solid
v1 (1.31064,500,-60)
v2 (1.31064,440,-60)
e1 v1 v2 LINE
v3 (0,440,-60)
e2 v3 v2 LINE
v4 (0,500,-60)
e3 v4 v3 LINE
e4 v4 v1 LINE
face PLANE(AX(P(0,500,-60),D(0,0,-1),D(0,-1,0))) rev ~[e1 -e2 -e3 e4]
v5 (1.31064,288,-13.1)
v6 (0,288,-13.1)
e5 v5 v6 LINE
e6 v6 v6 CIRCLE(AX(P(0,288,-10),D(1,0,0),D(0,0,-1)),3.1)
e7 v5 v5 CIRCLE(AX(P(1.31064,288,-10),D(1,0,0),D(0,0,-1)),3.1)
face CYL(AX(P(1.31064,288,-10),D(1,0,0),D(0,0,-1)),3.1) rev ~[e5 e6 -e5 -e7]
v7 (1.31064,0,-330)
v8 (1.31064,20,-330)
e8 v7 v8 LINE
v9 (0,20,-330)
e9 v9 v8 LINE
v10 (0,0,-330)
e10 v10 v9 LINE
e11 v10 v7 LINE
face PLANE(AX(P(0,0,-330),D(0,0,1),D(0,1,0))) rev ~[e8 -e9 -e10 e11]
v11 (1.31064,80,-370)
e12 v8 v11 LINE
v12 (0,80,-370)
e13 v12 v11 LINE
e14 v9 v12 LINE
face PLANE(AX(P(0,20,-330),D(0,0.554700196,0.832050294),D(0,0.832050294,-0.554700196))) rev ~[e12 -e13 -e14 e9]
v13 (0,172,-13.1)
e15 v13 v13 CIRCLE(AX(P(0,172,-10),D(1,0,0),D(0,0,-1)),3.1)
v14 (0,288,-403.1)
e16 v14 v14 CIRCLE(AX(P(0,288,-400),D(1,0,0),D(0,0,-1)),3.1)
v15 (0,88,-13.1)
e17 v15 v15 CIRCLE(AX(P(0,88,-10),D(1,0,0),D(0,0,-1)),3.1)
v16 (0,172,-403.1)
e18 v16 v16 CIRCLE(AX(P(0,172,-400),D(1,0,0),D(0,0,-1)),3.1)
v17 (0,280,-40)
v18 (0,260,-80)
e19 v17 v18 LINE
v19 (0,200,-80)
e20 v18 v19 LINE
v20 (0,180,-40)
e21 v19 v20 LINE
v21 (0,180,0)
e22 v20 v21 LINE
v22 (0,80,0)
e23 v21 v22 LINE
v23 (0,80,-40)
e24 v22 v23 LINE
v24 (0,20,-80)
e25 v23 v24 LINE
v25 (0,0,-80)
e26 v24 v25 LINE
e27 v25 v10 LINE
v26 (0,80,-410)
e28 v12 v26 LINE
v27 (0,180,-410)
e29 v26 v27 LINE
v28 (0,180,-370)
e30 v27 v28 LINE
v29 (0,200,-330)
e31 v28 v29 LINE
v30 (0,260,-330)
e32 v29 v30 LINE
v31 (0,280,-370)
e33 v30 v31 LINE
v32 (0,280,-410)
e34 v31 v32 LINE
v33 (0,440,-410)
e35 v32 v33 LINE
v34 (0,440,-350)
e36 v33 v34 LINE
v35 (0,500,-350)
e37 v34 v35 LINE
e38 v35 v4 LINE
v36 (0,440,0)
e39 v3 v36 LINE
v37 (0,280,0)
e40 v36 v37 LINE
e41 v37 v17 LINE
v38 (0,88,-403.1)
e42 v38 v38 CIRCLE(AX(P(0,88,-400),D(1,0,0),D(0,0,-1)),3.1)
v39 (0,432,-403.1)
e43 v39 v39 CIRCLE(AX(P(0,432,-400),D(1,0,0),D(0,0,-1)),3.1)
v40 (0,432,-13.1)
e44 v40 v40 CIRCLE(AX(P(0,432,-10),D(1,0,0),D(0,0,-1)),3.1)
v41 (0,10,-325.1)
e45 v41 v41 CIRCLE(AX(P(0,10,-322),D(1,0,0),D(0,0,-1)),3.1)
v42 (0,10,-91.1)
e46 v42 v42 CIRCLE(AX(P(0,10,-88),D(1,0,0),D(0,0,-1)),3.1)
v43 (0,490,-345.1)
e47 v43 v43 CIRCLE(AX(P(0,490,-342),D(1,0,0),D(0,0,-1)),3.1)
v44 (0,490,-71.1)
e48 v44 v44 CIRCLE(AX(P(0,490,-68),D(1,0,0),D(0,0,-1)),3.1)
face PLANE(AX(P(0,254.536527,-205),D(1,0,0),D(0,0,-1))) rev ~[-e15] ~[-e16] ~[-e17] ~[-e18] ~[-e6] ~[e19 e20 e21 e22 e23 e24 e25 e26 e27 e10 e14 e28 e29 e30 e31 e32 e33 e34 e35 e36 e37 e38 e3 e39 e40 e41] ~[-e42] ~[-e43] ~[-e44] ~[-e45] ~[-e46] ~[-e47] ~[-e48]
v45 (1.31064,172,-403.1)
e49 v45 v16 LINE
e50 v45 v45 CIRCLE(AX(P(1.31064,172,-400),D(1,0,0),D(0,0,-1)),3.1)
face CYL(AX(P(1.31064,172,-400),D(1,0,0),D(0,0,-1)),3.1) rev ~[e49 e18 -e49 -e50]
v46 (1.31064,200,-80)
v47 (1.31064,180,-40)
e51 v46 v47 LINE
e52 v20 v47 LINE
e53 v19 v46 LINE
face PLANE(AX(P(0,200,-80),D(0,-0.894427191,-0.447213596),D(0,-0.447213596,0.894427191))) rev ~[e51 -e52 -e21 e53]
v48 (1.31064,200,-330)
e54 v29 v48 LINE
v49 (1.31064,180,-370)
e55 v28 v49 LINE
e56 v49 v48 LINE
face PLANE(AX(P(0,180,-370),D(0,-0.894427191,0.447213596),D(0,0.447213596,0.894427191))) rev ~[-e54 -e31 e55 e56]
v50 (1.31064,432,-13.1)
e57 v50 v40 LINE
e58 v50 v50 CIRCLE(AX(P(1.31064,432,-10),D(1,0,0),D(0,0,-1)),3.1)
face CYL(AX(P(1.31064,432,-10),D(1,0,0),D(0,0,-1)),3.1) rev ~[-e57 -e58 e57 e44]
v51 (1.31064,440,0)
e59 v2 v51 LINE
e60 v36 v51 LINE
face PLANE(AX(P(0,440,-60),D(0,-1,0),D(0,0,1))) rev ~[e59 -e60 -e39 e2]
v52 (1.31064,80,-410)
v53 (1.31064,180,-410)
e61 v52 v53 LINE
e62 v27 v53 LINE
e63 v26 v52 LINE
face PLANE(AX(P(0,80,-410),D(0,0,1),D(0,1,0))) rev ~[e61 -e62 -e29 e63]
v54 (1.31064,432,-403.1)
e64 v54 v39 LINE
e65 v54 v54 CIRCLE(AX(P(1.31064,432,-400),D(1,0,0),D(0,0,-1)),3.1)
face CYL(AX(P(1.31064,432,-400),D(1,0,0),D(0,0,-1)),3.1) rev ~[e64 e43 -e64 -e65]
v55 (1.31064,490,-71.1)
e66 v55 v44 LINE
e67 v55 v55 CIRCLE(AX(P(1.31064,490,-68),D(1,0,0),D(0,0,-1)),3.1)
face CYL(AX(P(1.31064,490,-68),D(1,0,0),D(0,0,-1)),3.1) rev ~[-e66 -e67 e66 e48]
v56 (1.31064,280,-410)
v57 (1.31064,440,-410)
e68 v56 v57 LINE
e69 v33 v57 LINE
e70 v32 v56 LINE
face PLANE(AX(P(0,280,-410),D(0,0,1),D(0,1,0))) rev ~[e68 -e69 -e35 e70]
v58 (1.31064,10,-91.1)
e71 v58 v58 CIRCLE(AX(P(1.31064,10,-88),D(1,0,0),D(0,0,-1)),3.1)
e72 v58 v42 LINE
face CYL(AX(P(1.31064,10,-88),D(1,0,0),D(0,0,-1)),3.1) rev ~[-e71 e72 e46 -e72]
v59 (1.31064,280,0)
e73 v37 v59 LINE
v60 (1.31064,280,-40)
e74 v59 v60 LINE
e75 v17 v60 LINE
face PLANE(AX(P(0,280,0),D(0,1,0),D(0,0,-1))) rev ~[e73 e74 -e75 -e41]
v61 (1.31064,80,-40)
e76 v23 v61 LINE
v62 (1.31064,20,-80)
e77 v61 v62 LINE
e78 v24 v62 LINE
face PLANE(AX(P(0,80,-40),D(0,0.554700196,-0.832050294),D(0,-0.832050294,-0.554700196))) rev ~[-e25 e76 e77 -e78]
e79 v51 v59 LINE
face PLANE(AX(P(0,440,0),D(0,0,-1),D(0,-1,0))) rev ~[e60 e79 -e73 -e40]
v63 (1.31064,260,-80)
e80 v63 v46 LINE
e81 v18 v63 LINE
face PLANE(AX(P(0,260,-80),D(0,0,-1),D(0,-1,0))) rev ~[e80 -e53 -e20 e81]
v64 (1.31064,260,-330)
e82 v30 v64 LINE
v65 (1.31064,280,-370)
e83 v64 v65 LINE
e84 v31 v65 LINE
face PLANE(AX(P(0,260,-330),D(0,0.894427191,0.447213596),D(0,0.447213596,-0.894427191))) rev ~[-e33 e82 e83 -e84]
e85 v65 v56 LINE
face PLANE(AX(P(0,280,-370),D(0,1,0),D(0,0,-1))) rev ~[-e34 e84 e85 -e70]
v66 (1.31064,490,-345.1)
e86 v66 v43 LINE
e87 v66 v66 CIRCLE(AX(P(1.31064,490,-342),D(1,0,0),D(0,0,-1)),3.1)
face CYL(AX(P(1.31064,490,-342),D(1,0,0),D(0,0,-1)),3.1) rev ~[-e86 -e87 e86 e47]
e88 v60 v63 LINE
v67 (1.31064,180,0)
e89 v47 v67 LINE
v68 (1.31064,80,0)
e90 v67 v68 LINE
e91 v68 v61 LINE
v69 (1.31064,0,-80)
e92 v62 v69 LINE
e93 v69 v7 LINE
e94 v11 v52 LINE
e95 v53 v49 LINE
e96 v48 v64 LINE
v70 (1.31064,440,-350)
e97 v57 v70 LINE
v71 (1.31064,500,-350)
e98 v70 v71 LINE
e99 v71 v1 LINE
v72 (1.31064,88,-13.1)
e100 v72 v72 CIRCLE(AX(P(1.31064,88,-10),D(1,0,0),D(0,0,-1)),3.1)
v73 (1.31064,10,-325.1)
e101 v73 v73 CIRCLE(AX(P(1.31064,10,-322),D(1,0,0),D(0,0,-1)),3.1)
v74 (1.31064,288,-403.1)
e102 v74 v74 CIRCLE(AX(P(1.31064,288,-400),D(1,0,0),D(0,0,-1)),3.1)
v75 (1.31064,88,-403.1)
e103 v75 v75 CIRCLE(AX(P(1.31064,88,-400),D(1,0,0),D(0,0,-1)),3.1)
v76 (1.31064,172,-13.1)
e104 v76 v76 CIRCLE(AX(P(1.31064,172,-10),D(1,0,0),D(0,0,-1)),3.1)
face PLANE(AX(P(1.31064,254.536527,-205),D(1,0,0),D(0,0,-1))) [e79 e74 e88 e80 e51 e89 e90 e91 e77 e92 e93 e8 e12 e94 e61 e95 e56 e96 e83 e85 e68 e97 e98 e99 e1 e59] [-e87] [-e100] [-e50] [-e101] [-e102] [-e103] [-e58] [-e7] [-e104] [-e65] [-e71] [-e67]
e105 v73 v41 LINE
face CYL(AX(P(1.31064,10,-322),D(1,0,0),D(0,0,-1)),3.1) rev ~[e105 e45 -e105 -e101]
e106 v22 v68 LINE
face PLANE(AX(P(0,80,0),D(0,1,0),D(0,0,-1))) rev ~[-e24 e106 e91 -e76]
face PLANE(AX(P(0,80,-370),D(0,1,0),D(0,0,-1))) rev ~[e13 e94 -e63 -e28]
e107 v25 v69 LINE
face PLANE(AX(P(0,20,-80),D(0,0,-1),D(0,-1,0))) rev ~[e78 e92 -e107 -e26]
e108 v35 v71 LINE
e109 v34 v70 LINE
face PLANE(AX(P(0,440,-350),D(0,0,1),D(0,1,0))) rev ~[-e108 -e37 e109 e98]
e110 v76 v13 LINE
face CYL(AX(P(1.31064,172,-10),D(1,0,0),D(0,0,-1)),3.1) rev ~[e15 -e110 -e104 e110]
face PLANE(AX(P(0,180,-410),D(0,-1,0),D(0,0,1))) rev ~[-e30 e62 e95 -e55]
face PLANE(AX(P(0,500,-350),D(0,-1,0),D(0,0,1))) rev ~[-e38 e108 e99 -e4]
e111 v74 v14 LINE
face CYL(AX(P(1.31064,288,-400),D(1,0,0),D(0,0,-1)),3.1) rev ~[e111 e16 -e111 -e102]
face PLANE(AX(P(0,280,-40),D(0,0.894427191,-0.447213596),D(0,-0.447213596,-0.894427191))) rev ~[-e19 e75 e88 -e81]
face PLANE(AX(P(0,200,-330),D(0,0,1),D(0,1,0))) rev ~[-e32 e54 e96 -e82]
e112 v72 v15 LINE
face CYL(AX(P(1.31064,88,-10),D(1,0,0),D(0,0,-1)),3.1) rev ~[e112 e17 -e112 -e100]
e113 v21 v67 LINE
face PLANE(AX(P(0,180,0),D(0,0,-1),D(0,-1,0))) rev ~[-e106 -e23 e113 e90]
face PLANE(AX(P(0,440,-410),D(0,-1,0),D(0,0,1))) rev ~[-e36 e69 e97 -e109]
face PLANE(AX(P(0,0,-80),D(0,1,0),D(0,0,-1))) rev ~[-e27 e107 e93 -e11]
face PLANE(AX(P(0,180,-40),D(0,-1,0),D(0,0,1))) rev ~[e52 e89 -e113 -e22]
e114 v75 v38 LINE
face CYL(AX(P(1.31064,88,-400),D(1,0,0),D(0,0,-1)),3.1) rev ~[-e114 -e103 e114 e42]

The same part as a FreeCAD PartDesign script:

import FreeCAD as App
import Part
import Sketcher
Q = App.Units.Quantity

doc = App.newDocument("Part")
body = doc.addObject("PartDesign::Body", "Body")

sketch1 = body.newObject("Sketcher::SketchObject", "Sketch")
sketch1.AttachmentSupport = (doc.getObject("YZ_Plane"), [""])
sketch1.MapMode = "FlatFace"
sketch1.addGeometry([
    Part.LineSegment(App.Vector(440, 0, 0), App.Vector(280, 0, 0)),
    Part.LineSegment(App.Vector(280, 0, 0), App.Vector(280, -40, 0)),
    Part.LineSegment(App.Vector(280, -40, 0), App.Vector(260, -80, 0)),
    Part.LineSegment(App.Vector(260, -80, 0), App.Vector(200, -80, 0)),
    Part.LineSegment(App.Vector(200, -80, 0), App.Vector(180, -40, 0)),
    Part.LineSegment(App.Vector(180, -40, 0), App.Vector(180, 0, 0)),
    Part.LineSegment(App.Vector(180, 0, 0), App.Vector(80, 0, 0)),
    Part.LineSegment(App.Vector(80, 0, 0), App.Vector(80, -40, 0)),
    Part.LineSegment(App.Vector(80, -40, 0), App.Vector(20, -80, 0)),
    Part.LineSegment(App.Vector(20, -80, 0), App.Vector(0, -80, 0)),
    Part.LineSegment(App.Vector(0, -80, 0), App.Vector(0, -330, 0)),
    Part.LineSegment(App.Vector(0, -330, 0), App.Vector(20, -330, 0)),
    Part.LineSegment(App.Vector(20, -330, 0), App.Vector(80, -370, 0)),
    Part.LineSegment(App.Vector(80, -370, 0), App.Vector(80, -410, 0)),
    Part.LineSegment(App.Vector(80, -410, 0), App.Vector(180, -410, 0)),
    Part.LineSegment(App.Vector(180, -410, 0), App.Vector(180, -370, 0)),
    Part.LineSegment(App.Vector(180, -370, 0), App.Vector(200, -330, 0)),
    Part.LineSegment(App.Vector(200, -330, 0), App.Vector(260, -330, 0)),
    Part.LineSegment(App.Vector(260, -330, 0), App.Vector(280, -370, 0)),
    Part.LineSegment(App.Vector(280, -370, 0), App.Vector(280, -410, 0)),
    Part.LineSegment(App.Vector(280, -410, 0), App.Vector(440, -410, 0)),
    Part.LineSegment(App.Vector(440, -410, 0), App.Vector(440, -350, 0)),
    Part.LineSegment(App.Vector(440, -350, 0), App.Vector(500, -350, 0)),
    Part.LineSegment(App.Vector(500, -350, 0), App.Vector(500, -60, 0)),
    Part.LineSegment(App.Vector(500, -60, 0), App.Vector(440, -60, 0)),
    Part.LineSegment(App.Vector(440, -60, 0), App.Vector(440, 0, 0)),
], False)
sketch1.addConstraint([
    Sketcher.Constraint("Coincident", 0, 2, 1, 1),
    Sketcher.Constraint("Coincident", 1, 2, 2, 1),
    Sketcher.Constraint("Coincident", 2, 2, 3, 1),
    Sketcher.Constraint("Coincident", 3, 2, 4, 1),
    Sketcher.Constraint("Coincident", 4, 2, 5, 1),
    Sketcher.Constraint("Coincident", 5, 2, 6, 1),
    Sketcher.Constraint("Coincident", 6, 2, 7, 1),
    Sketcher.Constraint("Coincident", 7, 2, 8, 1),
    Sketcher.Constraint("Coincident", 8, 2, 9, 1),
    Sketcher.Constraint("Coincident", 9, 2, 10, 1),
    Sketcher.Constraint("Coincident", 10, 2, 11, 1),
    Sketcher.Constraint("Coincident", 11, 2, 12, 1),
    Sketcher.Constraint("Coincident", 12, 2, 13, 1),
    Sketcher.Constraint("Coincident", 13, 2, 14, 1),
    Sketcher.Constraint("Coincident", 14, 2, 15, 1),
    Sketcher.Constraint("Coincident", 15, 2, 16, 1),
    Sketcher.Constraint("Coincident", 16, 2, 17, 1),
    Sketcher.Constraint("Coincident", 17, 2, 18, 1),
    Sketcher.Constraint("Coincident", 18, 2, 19, 1),
    Sketcher.Constraint("Coincident", 19, 2, 20, 1),
    Sketcher.Constraint("Coincident", 20, 2, 21, 1),
    Sketcher.Constraint("Coincident", 21, 2, 22, 1),
    Sketcher.Constraint("Coincident", 22, 2, 23, 1),
    Sketcher.Constraint("Coincident", 23, 2, 24, 1),
    Sketcher.Constraint("Coincident", 24, 2, 25, 1),
    Sketcher.Constraint("Coincident", 25, 2, 0, 1),
    Sketcher.Constraint("Horizontal", 0),
    Sketcher.Constraint("Vertical", 1),
    Sketcher.Constraint("Horizontal", 3),
    Sketcher.Constraint("Vertical", 5),
    Sketcher.Constraint("Horizontal", 6),
    Sketcher.Constraint("Vertical", 7),
    Sketcher.Constraint("Horizontal", 9),
    Sketcher.Constraint("Vertical", 10),
    Sketcher.Constraint("Horizontal", 11),
    Sketcher.Constraint("Vertical", 13),
    Sketcher.Constraint("Horizontal", 14),
    Sketcher.Constraint("Vertical", 15),
    Sketcher.Constraint("Horizontal", 17),
    Sketcher.Constraint("Vertical", 19),
    Sketcher.Constraint("Horizontal", 20),
    Sketcher.Constraint("Vertical", 21),
    Sketcher.Constraint("Horizontal", 22),
    Sketcher.Constraint("Vertical", 23),
    Sketcher.Constraint("Horizontal", 24),
    Sketcher.Constraint("Vertical", 25),
    Sketcher.Constraint("PointOnObject", 0, 2, -1),
    Sketcher.Constraint("PointOnObject", 5, 2, -1),
    Sketcher.Constraint("PointOnObject", 9, 2, -2),
    Sketcher.Constraint("Parallel", 2, 16),
    Sketcher.Constraint("Parallel", 4, 18),
    Sketcher.Constraint("Horizontal", 1, 2, 4, 2),
    Sketcher.Constraint("Horizontal", 4, 2, 7, 2),
    Sketcher.Constraint("Horizontal", 3, 2, 8, 2),
    Sketcher.Constraint("Horizontal", 12, 2, 15, 2),
    Sketcher.Constraint("Horizontal", 11, 2, 16, 2),
    Sketcher.Constraint("Horizontal", 15, 2, 18, 2),
    Sketcher.Constraint("Horizontal", 14, 2, 19, 2),
    Sketcher.Constraint("Vertical", 8, 2, 11, 2),
    Sketcher.Constraint("Vertical", 7, 2, 12, 2),
    Sketcher.Constraint("Vertical", 5, 2, 14, 2),
    Sketcher.Constraint("Vertical", 3, 2, 16, 2),
    Sketcher.Constraint("Vertical", 2, 2, 17, 2),
    Sketcher.Constraint("Vertical", 1, 2, 18, 2),
    Sketcher.Constraint("Vertical", 21, 2, 24, 2),
    Sketcher.Constraint("Equal", 17, 22),
    Sketcher.Constraint("Equal", 7, 13),
    Sketcher.Constraint("Equal", 24, 21),
    Sketcher.Constraint("Equal", 21, 25),
    Sketcher.Constraint("DistanceX", 0, 2, 0, 1, Q("160 mm")),
    Sketcher.Constraint("DistanceX", 3, 2, 3, 1, Q("60 mm")),
    Sketcher.Constraint("DistanceX", 6, 2, 6, 1, Q("100 mm")),
    Sketcher.Constraint("DistanceX", 9, 2, 9, 1, Q("20 mm")),
    Sketcher.Constraint("DistanceY", 1, 2, 1, 1, Q("40 mm")),
    Sketcher.Constraint("DistanceY", 10, 2, 10, 1, Q("250 mm")),
    Sketcher.Constraint("DistanceY", 23, 1, 23, 2, Q("290 mm")),
    Sketcher.Constraint("DistanceX", -1, 1, 0, 2, Q("280 mm")),
    Sketcher.Constraint("DistanceX", -1, 1, 2, 2, Q("260 mm")),
])
pad1 = body.newObject("PartDesign::Pad", "Pad")
pad1.Profile = sketch1
pad1.Length = 1.31064

sketch2 = body.newObject("Sketcher::SketchObject", "Sketch001")
sketch2.AttachmentSupport = (doc.getObject("YZ_Plane"), [""])
sketch2.MapMode = "FlatFace"
sketch2.AttachmentOffset = App.Placement(App.Vector(0, 0, 1.31064), App.Rotation())
sketch2.addGeometry([
    Part.Circle(App.Vector(432, -10, 0), App.Vector(0, 0, 1), 3.1),
    Part.Circle(App.Vector(288, -10, 0), App.Vector(0, 0, 1), 3.1),
    Part.Circle(App.Vector(172, -10, 0), App.Vector(0, 0, 1), 3.1),
    Part.Circle(App.Vector(88, -10, 0), App.Vector(0, 0, 1), 3.1),
    Part.Circle(App.Vector(10, -88, 0), App.Vector(0, 0, 1), 3.1),
    Part.Circle(App.Vector(490, -68, 0), App.Vector(0, 0, 1), 3.1),
    Part.Circle(App.Vector(10, -322, 0), App.Vector(0, 0, 1), 3.1),
    Part.Circle(App.Vector(88, -400, 0), App.Vector(0, 0, 1), 3.1),
    Part.Circle(App.Vector(172, -400, 0), App.Vector(0, 0, 1), 3.1),
    Part.Circle(App.Vector(288, -400, 0), App.Vector(0, 0, 1), 3.1),
    Part.Circle(App.Vector(432, -400, 0), App.Vector(0, 0, 1), 3.1),
    Part.Circle(App.Vector(490, -342, 0), App.Vector(0, 0, 1), 3.1),
], False)
sketch2.addConstraint([
    Sketcher.Constraint("Equal", 0, 1),
    Sketcher.Constraint("Equal", 1, 2),
    Sketcher.Constraint("Equal", 2, 3),
    Sketcher.Constraint("Equal", 3, 4),
    Sketcher.Constraint("Equal", 4, 5),
    Sketcher.Constraint("Equal", 5, 6),
    Sketcher.Constraint("Equal", 6, 7),
    Sketcher.Constraint("Equal", 7, 8),
    Sketcher.Constraint("Equal", 8, 9),
    Sketcher.Constraint("Equal", 9, 10),
    Sketcher.Constraint("Equal", 10, 11),
    Sketcher.Constraint("Horizontal", 0, 3, 1, 3),
    Sketcher.Constraint("Horizontal", 1, 3, 2, 3),
    Sketcher.Constraint("Horizontal", 2, 3, 3, 3),
    Sketcher.Constraint("Horizontal", 7, 3, 8, 3),
    Sketcher.Constraint("Horizontal", 8, 3, 9, 3),
    Sketcher.Constraint("Horizontal", 9, 3, 10, 3),
    Sketcher.Constraint("Vertical", 4, 3, 6, 3),
    Sketcher.Constraint("Vertical", 3, 3, 7, 3),
    Sketcher.Constraint("Vertical", 2, 3, 8, 3),
    Sketcher.Constraint("Vertical", 1, 3, 9, 3),
    Sketcher.Constraint("Vertical", 0, 3, 10, 3),
    Sketcher.Constraint("Vertical", 5, 3, 11, 3),
    Sketcher.Constraint("Diameter", 0, Q("6.2 mm")),
    Sketcher.Constraint("DistanceX", -1, 1, 0, 3, Q("432 mm")),
    Sketcher.Constraint("DistanceY", 0, 3, -1, 1, Q("10 mm")),
    Sketcher.Constraint("DistanceX", -1, 1, 1, 3, Q("288 mm")),
    Sketcher.Constraint("DistanceX", -1, 1, 2, 3, Q("172 mm")),
    Sketcher.Constraint("DistanceX", -1, 1, 3, 3, Q("88 mm")),
    Sketcher.Constraint("DistanceX", -1, 1, 4, 3, Q("10 mm")),
    Sketcher.Constraint("DistanceY", 4, 3, -1, 1, Q("88 mm")),
    Sketcher.Constraint("DistanceX", -1, 1, 5, 3, Q("490 mm")),
    Sketcher.Constraint("DistanceY", 5, 3, -1, 1, Q("68 mm")),
    Sketcher.Constraint("DistanceY", 6, 3, -1, 1, Q("322 mm")),
    Sketcher.Constraint("DistanceY", 7, 3, -1, 1, Q("400 mm")),
    Sketcher.Constraint("DistanceY", 11, 3, -1, 1, Q("342 mm")),
])
pocket1 = body.newObject("PartDesign::Pocket", "Pocket")
pocket1.Profile = sketch2
pocket1.Length = 10

doc.recompute()
